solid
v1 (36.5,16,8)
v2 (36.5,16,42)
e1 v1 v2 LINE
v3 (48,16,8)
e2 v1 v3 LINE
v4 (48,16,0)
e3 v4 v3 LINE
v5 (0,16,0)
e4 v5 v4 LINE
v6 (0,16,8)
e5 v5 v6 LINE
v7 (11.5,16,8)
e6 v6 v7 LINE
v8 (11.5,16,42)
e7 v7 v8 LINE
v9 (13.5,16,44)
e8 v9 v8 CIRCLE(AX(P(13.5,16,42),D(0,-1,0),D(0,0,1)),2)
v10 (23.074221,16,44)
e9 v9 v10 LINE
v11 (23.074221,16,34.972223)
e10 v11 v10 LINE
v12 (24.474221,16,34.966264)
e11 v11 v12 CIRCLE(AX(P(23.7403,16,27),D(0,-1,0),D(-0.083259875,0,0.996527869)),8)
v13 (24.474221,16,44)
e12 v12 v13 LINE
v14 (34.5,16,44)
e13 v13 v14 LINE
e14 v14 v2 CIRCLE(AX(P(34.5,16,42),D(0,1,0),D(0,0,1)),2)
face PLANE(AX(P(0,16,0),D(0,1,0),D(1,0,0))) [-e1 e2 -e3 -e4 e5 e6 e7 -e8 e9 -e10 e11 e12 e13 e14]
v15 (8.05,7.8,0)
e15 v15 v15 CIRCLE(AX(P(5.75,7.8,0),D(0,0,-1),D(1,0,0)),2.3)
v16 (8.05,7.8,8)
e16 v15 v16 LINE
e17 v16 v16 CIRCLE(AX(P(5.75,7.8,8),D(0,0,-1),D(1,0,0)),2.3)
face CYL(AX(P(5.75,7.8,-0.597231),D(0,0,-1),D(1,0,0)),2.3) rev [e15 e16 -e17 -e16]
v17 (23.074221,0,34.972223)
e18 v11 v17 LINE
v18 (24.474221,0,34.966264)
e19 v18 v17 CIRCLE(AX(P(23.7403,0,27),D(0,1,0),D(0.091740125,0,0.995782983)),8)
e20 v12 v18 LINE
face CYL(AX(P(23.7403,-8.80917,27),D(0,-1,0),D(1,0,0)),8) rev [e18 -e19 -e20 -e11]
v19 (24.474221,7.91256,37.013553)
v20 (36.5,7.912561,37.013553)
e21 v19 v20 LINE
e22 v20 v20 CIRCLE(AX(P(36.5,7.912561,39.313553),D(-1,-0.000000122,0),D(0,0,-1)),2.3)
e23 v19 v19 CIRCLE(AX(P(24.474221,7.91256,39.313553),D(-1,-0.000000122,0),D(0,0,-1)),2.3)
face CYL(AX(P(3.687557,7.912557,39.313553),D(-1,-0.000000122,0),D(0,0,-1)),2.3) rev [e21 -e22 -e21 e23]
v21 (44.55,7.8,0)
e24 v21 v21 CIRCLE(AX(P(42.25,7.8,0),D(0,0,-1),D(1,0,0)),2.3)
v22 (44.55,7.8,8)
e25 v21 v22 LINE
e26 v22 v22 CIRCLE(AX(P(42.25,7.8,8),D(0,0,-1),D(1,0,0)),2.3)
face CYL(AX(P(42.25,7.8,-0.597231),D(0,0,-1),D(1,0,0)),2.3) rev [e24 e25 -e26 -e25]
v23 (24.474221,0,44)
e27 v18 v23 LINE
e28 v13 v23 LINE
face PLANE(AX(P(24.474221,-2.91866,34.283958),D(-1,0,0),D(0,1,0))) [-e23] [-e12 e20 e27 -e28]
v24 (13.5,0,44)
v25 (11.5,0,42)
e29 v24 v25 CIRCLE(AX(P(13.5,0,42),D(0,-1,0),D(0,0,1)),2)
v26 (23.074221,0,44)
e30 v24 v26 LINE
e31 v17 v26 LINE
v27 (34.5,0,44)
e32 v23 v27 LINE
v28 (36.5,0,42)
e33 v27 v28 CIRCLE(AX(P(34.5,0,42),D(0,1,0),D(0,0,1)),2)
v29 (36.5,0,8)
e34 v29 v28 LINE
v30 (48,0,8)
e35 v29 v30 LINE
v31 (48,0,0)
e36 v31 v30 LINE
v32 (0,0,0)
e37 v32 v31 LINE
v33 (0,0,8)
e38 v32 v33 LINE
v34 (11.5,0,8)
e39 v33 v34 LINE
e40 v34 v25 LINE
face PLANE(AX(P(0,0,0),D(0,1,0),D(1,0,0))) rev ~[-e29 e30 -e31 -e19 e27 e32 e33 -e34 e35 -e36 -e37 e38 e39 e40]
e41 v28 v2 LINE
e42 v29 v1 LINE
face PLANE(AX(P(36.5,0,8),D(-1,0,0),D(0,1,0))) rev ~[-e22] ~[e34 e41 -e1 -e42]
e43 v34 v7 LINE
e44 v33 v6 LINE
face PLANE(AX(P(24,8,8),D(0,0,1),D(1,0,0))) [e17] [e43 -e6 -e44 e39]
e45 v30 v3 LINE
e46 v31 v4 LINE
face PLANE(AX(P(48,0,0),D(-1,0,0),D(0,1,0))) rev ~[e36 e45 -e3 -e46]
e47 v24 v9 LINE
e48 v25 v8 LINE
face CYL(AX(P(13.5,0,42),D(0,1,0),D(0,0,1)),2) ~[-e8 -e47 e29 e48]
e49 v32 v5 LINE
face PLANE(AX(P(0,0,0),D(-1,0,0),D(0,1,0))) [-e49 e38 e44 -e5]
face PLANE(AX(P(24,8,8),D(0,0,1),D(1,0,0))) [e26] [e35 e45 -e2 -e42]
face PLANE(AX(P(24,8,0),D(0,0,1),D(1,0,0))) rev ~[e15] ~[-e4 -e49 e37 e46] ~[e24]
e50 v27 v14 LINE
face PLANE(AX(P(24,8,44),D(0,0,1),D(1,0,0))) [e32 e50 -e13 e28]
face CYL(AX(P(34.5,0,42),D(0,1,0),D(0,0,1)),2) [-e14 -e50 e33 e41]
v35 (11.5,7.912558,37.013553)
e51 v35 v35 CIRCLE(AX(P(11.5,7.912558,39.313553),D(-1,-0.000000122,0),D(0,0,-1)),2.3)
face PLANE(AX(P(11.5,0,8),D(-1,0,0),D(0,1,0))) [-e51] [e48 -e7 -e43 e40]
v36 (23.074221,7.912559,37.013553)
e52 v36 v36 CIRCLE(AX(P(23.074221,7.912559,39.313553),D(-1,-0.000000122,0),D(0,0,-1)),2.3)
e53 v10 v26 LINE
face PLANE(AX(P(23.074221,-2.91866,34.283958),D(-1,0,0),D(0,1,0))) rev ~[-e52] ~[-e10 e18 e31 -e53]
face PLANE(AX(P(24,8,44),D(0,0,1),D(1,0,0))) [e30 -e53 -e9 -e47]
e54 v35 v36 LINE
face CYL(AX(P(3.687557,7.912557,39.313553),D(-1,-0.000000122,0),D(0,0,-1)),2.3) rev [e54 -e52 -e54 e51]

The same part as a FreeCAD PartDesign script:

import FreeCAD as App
import Part
import Sketcher


def edges_at(feature, points):
    """Names of the edges that pass closest to the given points."""
    edges = feature.Shape.Edges
    near = lambda p: min(range(len(edges)), key=lambda i: edges[i].distToShape(Part.Vertex(*p))[0])
    return sorted({f"Edge{near(p) + 1}" for p in points})


def add_polygon(sketch, points):
    """Adds a closed chain of lines whose ends are joined by coincident constraints."""
    first, n = sketch.GeometryCount, len(points)
    for a, b in zip(points, points[1:] + points[:1]):
        sketch.addGeometry(Part.LineSegment(App.Vector(*a, 0), App.Vector(*b, 0)), False)
    for i in range(n):
        sketch.addConstraint(Sketcher.Constraint("Coincident", first + i, 2, first + (i + 1) % n, 1))

doc = App.newDocument("Part")
body = doc.addObject("PartDesign::Body", "Body")

sketch1 = body.newObject("Sketcher::SketchObject", "Sketch")
sketch1.AttachmentSupport = (doc.getObject("XY_Plane"), [""])
sketch1.MapMode = "FlatFace"
sketch1.addGeometry(Part.Circle(App.Vector(0, 0, 0), App.Vector(0, 0, 1), 2.3), False)
sketch1.addConstraint([
    Sketcher.Constraint("Coincident", 0, 3, -1, 1),
    Sketcher.Constraint("Diameter", 0, 4.6),
])
pad1 = body.newObject("PartDesign::Pad", "Pad")
pad1.Profile = sketch1
pad1.Length = 40
body2 = doc.addObject("PartDesign::Body", "Body001")
doc.recompute()

body.Placement = App.Placement(App.Vector(0, 0, 0), App.Rotation(App.Vector(0, 1, 0), 90))
boolean = body2.newObject("PartDesign::Boolean", "Boolean")
boolean.Type = "Fuse"
boolean.addObjects([body])
body3 = doc.addObject("PartDesign::Body", "Body002")
doc.recompute()

body2.Placement = App.Placement(App.Vector(3.687557, 7.912557, 39.313553), App.Rotation(App.Vector(0, 0, 1), 0.000007))
boolean2 = body3.newObject("PartDesign::Boolean", "Boolean001")
boolean2.Type = "Fuse"
boolean2.addObjects([body2])
body4 = doc.addObject("PartDesign::Body", "Body003")

sketch2 = body4.newObject("Sketcher::SketchObject", "Sketch001")
sketch2.AttachmentSupport = (doc.getObject("XY_Plane003"), [""])
sketch2.MapMode = "FlatFace"
sketch2.AttachmentOffset = App.Placement(App.Vector(0, 0, -0.597231), App.Rotation())
sketch2.addGeometry(Part.Circle(App.Vector(42.2, 7.8, 0), App.Vector(0, 0, 1), 2.3), False)
sketch2.addConstraint([
    Sketcher.Constraint("Diameter", 0, 4.6),
    Sketcher.Constraint("DistanceY", -1, 1, 0, 3, 7.8),
    Sketcher.Constraint("DistanceX", -1, 1, 0, 3, 42.25),
])
pad2 = body4.newObject("PartDesign::Pad", "Pad001")
pad2.Profile = sketch2
pad2.Length = 10
body5 = doc.addObject("PartDesign::Body", "Body004")

sketch3 = body5.newObject("Sketcher::SketchObject", "Sketch002")
sketch3.AttachmentSupport = (doc.getObject("XY_Plane004"), [""])
sketch3.MapMode = "FlatFace"
sketch3.AttachmentOffset = App.Placement(App.Vector(0, 0, -0.597231), App.Rotation())
sketch3.addGeometry(Part.Circle(App.Vector(5.8, 7.8, 0), App.Vector(0, 0, 1), 2.3), False)
sketch3.addConstraint([
    Sketcher.Constraint("Diameter", 0, 4.6),
    Sketcher.Constraint("DistanceY", -1, 1, 0, 3, 7.8),
    Sketcher.Constraint("DistanceX", -1, 1, 0, 3, 5.75),
])
pad3 = body5.newObject("PartDesign::Pad", "Pad002")
pad3.Profile = sketch3
pad3.Length = 10
body6 = doc.addObject("PartDesign::Body", "Body005")

sketch4 = body6.newObject("Sketcher::SketchObject", "Sketch003")
sketch4.AttachmentSupport = (doc.getObject("XY_Plane005"), [""])
sketch4.MapMode = "FlatFace"
sketch4.AttachmentOffset = App.Placement(App.Vector(0, 0, 34.283958), App.Rotation())
add_polygon(sketch4, [(23.1, 17.1), (23.1, -2.9), (24.5, -2.9), (24.5, 17.1)])
sketch4.addConstraint([
    Sketcher.Constraint("Vertical", 0),
    Sketcher.Constraint("Horizontal", 1),
    Sketcher.Constraint("Vertical", 2),
    Sketcher.Constraint("Horizontal", 3),
    Sketcher.Constraint("DistanceY", 0, 2, 0, 1, 20.0),
    Sketcher.Constraint("DistanceX", 1, 1, 1, 2, 1.4),
    Sketcher.Constraint("DistanceX", -1, 1, 0, 2, 23.074221),
    Sketcher.Constraint("DistanceY", 0, 2, -1, 1, 2.91866),
])
pad4 = body6.newObject("PartDesign::Pad", "Pad003")
pad4.Profile = sketch4
pad4.Length = 20
body7 = doc.addObject("PartDesign::Body", "Body006")

sketch5 = body7.newObject("Sketcher::SketchObject", "Sketch004")
sketch5.AttachmentSupport = (doc.getObject("XY_Plane006"), [""])
sketch5.MapMode = "FlatFace"
sketch5.addGeometry(Part.Circle(App.Vector(0, 0, 0), App.Vector(0, 0, 1), 8), False)
sketch5.addConstraint([
    Sketcher.Constraint("Coincident", 0, 3, -1, 1),
    Sketcher.Constraint("Diameter", 0, 16.0),
])
pad5 = body7.newObject("PartDesign::Pad", "Pad004")
pad5.Profile = sketch5
pad5.Length = 30
body8 = doc.addObject("PartDesign::Body", "Body007")
doc.recompute()

body7.Placement = App.Placement(App.Vector(0, 0, 0), App.Rotation(App.Vector(1, 0, 0), 270))
boolean3 = body8.newObject("PartDesign::Boolean", "Boolean002")
boolean3.Type = "Fuse"
boolean3.addObjects([body7])
body9 = doc.addObject("PartDesign::Body", "Body008")
doc.recompute()

body8.Placement = App.Placement(App.Vector(23.7403, -8.80917, 27), App.Rotation(App.Vector(0, 0, 1), 0))
boolean4 = body9.newObject("PartDesign::Boolean", "Boolean003")
boolean4.Type = "Fuse"
boolean4.addObjects([body8])
body10 = doc.addObject("PartDesign::Body", "Body009")

sketch6 = body10.newObject("Sketcher::SketchObject", "Sketch005")
sketch6.AttachmentSupport = (doc.getObject("XY_Plane009"), [""])
sketch6.MapMode = "FlatFace"
sketch6.AttachmentOffset = App.Placement(App.Vector(0, 0, 8), App.Rotation())
add_polygon(sketch6, [(12, 16), (12, 0), (36, 0), (36, 16)])
sketch6.addConstraint([
    Sketcher.Constraint("Vertical", 0),
    Sketcher.Constraint("Horizontal", 1),
    Sketcher.Constraint("Vertical", 2),
    Sketcher.Constraint("Horizontal", 3),
    Sketcher.Constraint("PointOnObject", 0, 2, -1),
    Sketcher.Constraint("DistanceX", 1, 1, 1, 2, 25.0),
    Sketcher.Constraint("DistanceY", 0, 2, 0, 1, 16.0),
    Sketcher.Constraint("DistanceX", -1, 1, 0, 2, 11.5),
])
pad6 = body10.newObject("PartDesign::Pad", "Pad005")
pad6.Profile = sketch6
pad6.Length = 36
body11 = doc.addObject("PartDesign::Body", "Body010")

sketch7 = body11.newObject("Sketcher::SketchObject", "Sketch006")
sketch7.AttachmentSupport = (doc.getObject("XY_Plane010"), [""])
sketch7.MapMode = "FlatFace"
add_polygon(sketch7, [(0, 16), (0, 0), (48, 0), (48, 16)])
sketch7.addConstraint([
    Sketcher.Constraint("Vertical", 0),
    Sketcher.Constraint("Horizontal", 1),
    Sketcher.Constraint("Vertical", 2),
    Sketcher.Constraint("Horizontal", 3),
    Sketcher.Constraint("Coincident", 0, 2, -1, 1),
    Sketcher.Constraint("DistanceX", 1, 1, 1, 2, 48.0),
    Sketcher.Constraint("DistanceY", 0, 2, 0, 1, 16.0),
])
pad7 = body11.newObject("PartDesign::Pad", "Pad006")
pad7.Profile = sketch7
pad7.Length = 8
doc.recompute()

boolean5 = body11.newObject("PartDesign::Boolean", "Boolean004")
boolean5.Type = "Fuse"
boolean5.addObjects([body10])
doc.recompute()

boolean6 = body11.newObject("PartDesign::Boolean", "Boolean005")
boolean6.Type = "Cut"
boolean6.addObjects([body9])
doc.recompute()

boolean7 = body11.newObject("PartDesign::Boolean", "Boolean006")
boolean7.Type = "Cut"
boolean7.addObjects([body6])
doc.recompute()

boolean8 = body11.newObject("PartDesign::Boolean", "Boolean007")
boolean8.Type = "Cut"
boolean8.addObjects([body5])
doc.recompute()

boolean9 = body11.newObject("PartDesign::Boolean", "Boolean008")
boolean9.Type = "Cut"
boolean9.addObjects([body4])
doc.recompute()

boolean10 = body11.newObject("PartDesign::Boolean", "Boolean009")
boolean10.Type = "Cut"
boolean10.addObjects([body3])
doc.recompute()

fillet = body11.newObject("PartDesign::Fillet", "Fillet")
fillet.Base = (boolean10, edges_at(boolean10, [(36.5, 8, 44)]))
fillet.Radius = 2
doc.recompute()

fillet2 = body11.newObject("PartDesign::Fillet", "Fillet001")
fillet2.Base = (fillet, edges_at(fillet, [(11.5, 8, 44)]))
fillet2.Radius = 2

doc.recompute()
